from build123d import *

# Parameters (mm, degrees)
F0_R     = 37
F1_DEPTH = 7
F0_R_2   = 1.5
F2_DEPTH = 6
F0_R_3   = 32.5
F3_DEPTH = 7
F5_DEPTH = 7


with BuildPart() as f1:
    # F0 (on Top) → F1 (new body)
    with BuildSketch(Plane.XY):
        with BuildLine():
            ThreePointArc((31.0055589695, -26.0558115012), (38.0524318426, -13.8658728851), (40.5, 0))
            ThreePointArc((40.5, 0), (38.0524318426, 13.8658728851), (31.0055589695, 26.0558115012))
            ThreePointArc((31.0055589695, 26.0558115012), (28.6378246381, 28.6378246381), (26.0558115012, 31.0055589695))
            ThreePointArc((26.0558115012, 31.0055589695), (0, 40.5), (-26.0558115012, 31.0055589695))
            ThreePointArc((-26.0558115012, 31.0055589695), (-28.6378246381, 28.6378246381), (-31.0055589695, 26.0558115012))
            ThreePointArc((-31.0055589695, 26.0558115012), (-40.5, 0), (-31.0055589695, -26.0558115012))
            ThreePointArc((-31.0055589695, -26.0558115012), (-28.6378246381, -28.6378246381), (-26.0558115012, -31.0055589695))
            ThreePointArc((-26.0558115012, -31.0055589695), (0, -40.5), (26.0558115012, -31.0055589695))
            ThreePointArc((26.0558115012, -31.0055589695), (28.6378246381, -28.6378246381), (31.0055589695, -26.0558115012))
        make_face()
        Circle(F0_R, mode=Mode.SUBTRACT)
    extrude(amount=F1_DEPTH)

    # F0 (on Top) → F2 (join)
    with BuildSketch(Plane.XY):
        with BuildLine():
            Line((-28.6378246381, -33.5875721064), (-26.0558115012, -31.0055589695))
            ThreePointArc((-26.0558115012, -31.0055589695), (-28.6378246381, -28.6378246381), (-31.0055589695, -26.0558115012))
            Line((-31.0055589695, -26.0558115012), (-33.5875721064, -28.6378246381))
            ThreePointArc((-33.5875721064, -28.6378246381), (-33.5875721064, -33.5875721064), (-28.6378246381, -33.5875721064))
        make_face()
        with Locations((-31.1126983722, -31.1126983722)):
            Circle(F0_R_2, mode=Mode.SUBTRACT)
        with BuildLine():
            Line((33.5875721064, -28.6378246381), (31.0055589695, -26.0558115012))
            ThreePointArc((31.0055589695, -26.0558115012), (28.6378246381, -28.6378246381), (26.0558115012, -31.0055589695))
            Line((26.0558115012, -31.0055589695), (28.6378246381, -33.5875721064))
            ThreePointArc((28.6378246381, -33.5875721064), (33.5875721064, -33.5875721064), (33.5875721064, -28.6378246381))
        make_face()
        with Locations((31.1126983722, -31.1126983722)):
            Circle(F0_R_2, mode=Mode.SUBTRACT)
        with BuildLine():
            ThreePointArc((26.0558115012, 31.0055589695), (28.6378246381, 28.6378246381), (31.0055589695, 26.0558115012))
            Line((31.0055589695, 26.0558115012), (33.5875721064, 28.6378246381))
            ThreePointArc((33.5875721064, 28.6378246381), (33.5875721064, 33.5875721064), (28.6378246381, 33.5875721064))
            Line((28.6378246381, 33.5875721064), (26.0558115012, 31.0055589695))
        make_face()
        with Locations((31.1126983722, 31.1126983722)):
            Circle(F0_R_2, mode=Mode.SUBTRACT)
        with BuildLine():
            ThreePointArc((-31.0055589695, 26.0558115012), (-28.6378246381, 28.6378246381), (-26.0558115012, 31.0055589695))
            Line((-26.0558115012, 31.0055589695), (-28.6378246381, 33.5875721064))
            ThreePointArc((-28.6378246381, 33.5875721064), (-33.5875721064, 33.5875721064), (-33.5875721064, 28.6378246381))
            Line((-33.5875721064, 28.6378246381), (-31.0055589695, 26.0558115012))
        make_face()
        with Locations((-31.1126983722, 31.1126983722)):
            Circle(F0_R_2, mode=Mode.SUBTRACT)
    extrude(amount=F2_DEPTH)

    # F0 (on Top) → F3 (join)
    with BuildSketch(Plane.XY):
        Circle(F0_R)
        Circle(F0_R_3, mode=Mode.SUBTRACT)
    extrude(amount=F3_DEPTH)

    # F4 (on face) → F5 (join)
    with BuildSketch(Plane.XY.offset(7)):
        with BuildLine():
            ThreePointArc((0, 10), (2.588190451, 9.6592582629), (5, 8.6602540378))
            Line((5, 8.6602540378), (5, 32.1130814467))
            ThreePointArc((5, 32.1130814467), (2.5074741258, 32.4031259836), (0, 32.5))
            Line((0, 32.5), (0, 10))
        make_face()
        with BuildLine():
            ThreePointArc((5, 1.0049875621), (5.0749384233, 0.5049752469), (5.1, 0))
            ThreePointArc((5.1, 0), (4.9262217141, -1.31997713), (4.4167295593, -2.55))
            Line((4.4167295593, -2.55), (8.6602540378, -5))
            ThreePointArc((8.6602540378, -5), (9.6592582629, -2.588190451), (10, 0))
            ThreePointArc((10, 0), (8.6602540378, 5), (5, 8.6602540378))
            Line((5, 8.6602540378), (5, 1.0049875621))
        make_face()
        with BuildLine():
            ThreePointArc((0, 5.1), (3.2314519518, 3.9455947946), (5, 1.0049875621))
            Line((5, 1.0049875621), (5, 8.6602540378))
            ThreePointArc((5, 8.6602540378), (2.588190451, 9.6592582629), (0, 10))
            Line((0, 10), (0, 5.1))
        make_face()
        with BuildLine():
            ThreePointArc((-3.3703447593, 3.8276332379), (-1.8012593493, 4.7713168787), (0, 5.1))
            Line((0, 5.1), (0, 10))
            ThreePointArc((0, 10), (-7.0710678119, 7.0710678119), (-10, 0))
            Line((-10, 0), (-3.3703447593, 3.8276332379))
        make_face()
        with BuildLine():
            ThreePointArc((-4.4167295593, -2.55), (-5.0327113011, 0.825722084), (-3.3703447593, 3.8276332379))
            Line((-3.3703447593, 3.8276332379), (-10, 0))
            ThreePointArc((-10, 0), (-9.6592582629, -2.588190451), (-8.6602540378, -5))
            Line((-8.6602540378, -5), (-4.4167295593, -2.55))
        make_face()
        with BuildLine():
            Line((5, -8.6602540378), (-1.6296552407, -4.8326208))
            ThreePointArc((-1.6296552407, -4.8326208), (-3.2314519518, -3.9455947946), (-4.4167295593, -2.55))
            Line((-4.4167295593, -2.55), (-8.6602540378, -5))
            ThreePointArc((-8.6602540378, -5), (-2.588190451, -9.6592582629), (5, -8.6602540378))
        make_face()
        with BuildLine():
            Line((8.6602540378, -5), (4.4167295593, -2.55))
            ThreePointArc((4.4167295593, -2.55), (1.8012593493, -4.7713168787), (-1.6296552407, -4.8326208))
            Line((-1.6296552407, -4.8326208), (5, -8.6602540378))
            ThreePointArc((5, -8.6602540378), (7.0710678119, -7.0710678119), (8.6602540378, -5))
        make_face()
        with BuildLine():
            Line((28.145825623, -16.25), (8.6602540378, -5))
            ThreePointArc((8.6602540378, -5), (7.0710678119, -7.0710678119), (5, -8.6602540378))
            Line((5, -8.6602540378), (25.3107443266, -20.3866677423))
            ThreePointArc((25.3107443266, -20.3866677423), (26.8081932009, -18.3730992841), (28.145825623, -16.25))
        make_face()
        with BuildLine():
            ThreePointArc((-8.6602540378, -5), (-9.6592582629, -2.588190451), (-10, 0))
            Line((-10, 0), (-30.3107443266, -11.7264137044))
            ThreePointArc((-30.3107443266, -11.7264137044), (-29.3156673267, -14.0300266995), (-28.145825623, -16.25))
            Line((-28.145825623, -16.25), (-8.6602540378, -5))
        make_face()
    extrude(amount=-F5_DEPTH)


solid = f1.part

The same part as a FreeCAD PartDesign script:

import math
import FreeCAD as App
import Part
import Sketcher

V = App.Vector
Q = App.Units.Quantity

doc = App.newDocument("Part")
body = doc.addObject("PartDesign::Body", "Body")

# Sketch on XY plane
sketch1 = doc.addObject("Sketcher::SketchObject", "Sketch")
body.addObject(sketch1)
sketch1.AttachmentSupport = (doc.XY_Plane, [""])
sketch1.MapMode = "FlatFace"
sketch1.addGeometry([
    Part.ArcOfCircle(Part.Circle(V(0, 0, 0), V(0, 0, 1), 40), math.radians(-40), math.radians(0)),  # 0
    Part.ArcOfCircle(Part.Circle(V(0, 0, 0), V(0, 0, 1), 40), math.radians(0), math.radians(40)),  # 1
    Part.ArcOfCircle(Part.Circle(V(0, 0, 0), V(0, 0, 1), 40), math.radians(40.04), math.radians(49.96)),  # 2
    Part.ArcOfCircle(Part.Circle(V(0, 0, 0), V(0, 0, 1), 40), math.radians(50), math.radians(130)),  # 3
    Part.ArcOfCircle(Part.Circle(V(0, 0, 0), V(0, 0, 1), 40), math.radians(130.04), math.radians(139.96)),  # 4
    Part.ArcOfCircle(Part.Circle(V(0, 0, 0), V(0, 0, 1), 40), math.radians(140), math.radians(220)),  # 5
    Part.ArcOfCircle(Part.Circle(V(0, 0, 0), V(0, 0, 1), 40), math.radians(-139.96), math.radians(-130.04)),  # 6
    Part.ArcOfCircle(Part.Circle(V(0, 0, 0), V(0, 0, 1), 40), math.radians(-130), math.radians(-50)),  # 7
    Part.ArcOfCircle(Part.Circle(V(0, 0, 0), V(0, 0, 1), 40), math.radians(-49.96), math.radians(-40.04)),  # 8
    Part.Circle(V(0, 0, 0), V(0, 0, 1), 37),  # 9
], False)
sketch1.addConstraint([
    Sketcher.Constraint("Tangent", 0, 2, 1, 1),
    Sketcher.Constraint("Tangent", 1, 2, 2, 1),
    Sketcher.Constraint("Tangent", 2, 2, 3, 1),
    Sketcher.Constraint("Tangent", 3, 2, 4, 1),
    Sketcher.Constraint("Tangent", 4, 2, 5, 1),
    Sketcher.Constraint("Tangent", 5, 2, 6, 1),
    Sketcher.Constraint("Tangent", 6, 2, 7, 1),
    Sketcher.Constraint("Tangent", 7, 2, 8, 1),
    Sketcher.Constraint("Tangent", 8, 2, 0, 1),
    Sketcher.Constraint("Coincident", 0, 3, -1, 1),
    Sketcher.Constraint("Coincident", 2, 3, -1, 1),
    Sketcher.Constraint("Coincident", 4, 3, -1, 1),
    Sketcher.Constraint("Coincident", 6, 3, -1, 1),
    Sketcher.Constraint("Coincident", 9, 3, -1, 1),
    Sketcher.Constraint("PointOnObject", 0, 2, -1),
    Sketcher.Constraint("Horizontal", 2, 2, 3, 2),
    Sketcher.Constraint("Horizontal", 1, 2, 4, 2),
    Sketcher.Constraint("Horizontal", 6, 2, 7, 2),
    Sketcher.Constraint("Horizontal", 5, 2, 8, 2),
    Sketcher.Constraint("Vertical", 4, 2, 5, 2),
    Sketcher.Constraint("Vertical", 3, 2, 6, 2),
    Sketcher.Constraint("Diameter", 9, 74.0),
    Sketcher.Constraint("Radius", 0, 40.5),
    Sketcher.Constraint("DistanceX", -1, 1, 1, 2, 31.005559),
    Sketcher.Constraint("DistanceX", -1, 1, 2, 2, 26.055812),
])
pad1 = doc.addObject("PartDesign::Pad", "Pad")
body.addObject(pad1)
pad1.Profile = sketch1
pad1.Length = 7

# Sketch on XY plane
sketch2 = doc.addObject("Sketcher::SketchObject", "Sketch001")
body.addObject(sketch2)
sketch2.AttachmentSupport = (doc.XY_Plane, [""])
sketch2.MapMode = "FlatFace"
sketch2.addGeometry([
    Part.LineSegment(V(-28.6, -33.6, 0), V(-26.1, -31, 0)),  # 0
    Part.ArcOfCircle(Part.Circle(V(0, 0, 0), V(0, 0, 1), 40.5), math.radians(-139.96), math.radians(-130.04)),  # 1
    Part.LineSegment(V(-31, -26.1, 0), V(-33.6, -28.6, 0)),  # 2
    Part.ArcOfCircle(Part.Circle(V(-31.1, -31.1, 0), V(0, 0, 1), 3.5), math.radians(135), math.radians(315)),  # 3
    Part.Circle(V(-31.1, -31.1, 0), V(0, 0, 1), 1.5),  # 4
    Part.LineSegment(V(33.6, -28.6, 0), V(31, -26.1, 0)),  # 5
    Part.ArcOfCircle(Part.Circle(V(0, 0, 0), V(0, 0, 1), 40.5), math.radians(-49.96), math.radians(-40.04)),  # 6
    Part.LineSegment(V(26.1, -31, 0), V(28.6, -33.6, 0)),  # 7
    Part.ArcOfCircle(Part.Circle(V(31.1, -31.1, 0), V(0, 0, 1), 3.5), math.radians(-135), math.radians(45)),  # 8
    Part.Circle(V(31.1, -31.1, 0), V(0, 0, 1), 1.5),  # 9
    Part.ArcOfCircle(Part.Circle(V(0, 0, 0), V(0, 0, 1), 40.5), math.radians(40.04), math.radians(49.96)),  # 10
    Part.LineSegment(V(31, 26.1, 0), V(33.6, 28.6, 0)),  # 11
    Part.ArcOfCircle(Part.Circle(V(31.1, 31.1, 0), V(0, 0, 1), 3.5), math.radians(-45), math.radians(135)),  # 12
    Part.LineSegment(V(28.6, 33.6, 0), V(26.1, 31, 0)),  # 13
    Part.Circle(V(31.1, 31.1, 0), V(0, 0, 1), 1.5),  # 14
    Part.ArcOfCircle(Part.Circle(V(0, 0, 0), V(0, 0, 1), 40.5), math.radians(130.04), math.radians(139.96)),  # 15
    Part.LineSegment(V(-26.1, 31, 0), V(-28.6, 33.6, 0)),  # 16
    Part.ArcOfCircle(Part.Circle(V(-31.1, 31.1, 0), V(0, 0, 1), 3.5), math.radians(45), math.radians(225)),  # 17
    Part.LineSegment(V(-33.6, 28.6, 0), V(-31, 26.1, 0)),  # 18
    Part.Circle(V(-31.1, 31.1, 0), V(0, 0, 1), 1.5),  # 19
], False)
sketch2.addConstraint([
    Sketcher.Constraint("Coincident", 0, 2, 1, 2),
    Sketcher.Constraint("Coincident", 1, 1, 2, 1),
    Sketcher.Constraint("Tangent", 2, 2, 3, 1),
    Sketcher.Constraint("Tangent", 3, 2, 0, 1),
    Sketcher.Constraint("Coincident", 5, 2, 6, 2),
    Sketcher.Constraint("Coincident", 6, 1, 7, 1),
    Sketcher.Constraint("Tangent", 7, 2, 8, 1),
    Sketcher.Constraint("Tangent", 8, 2, 5, 1),
    Sketcher.Constraint("Coincident", 10, 1, 11, 1),
    Sketcher.Constraint("Tangent", 11, 2, 12, 1),
    Sketcher.Constraint("Tangent", 12, 2, 13, 1),
    Sketcher.Constraint("Coincident", 13, 2, 10, 2),
    Sketcher.Constraint("Coincident", 15, 1, 16, 1),
    Sketcher.Constraint("Tangent", 16, 2, 17, 1),
    Sketcher.Constraint("Tangent", 17, 2, 18, 1),
    Sketcher.Constraint("Coincident", 18, 2, 15, 2),
    Sketcher.Constraint("Coincident", 1, 3, -1, 1),
    Sketcher.Constraint("Coincident", 6, 3, -1, 1),
    Sketcher.Constraint("Coincident", 10, 3, -1, 1),
    Sketcher.Constraint("Coincident", 15, 3, -1, 1),
    Sketcher.Constraint("Coincident", 4, 3, 3, 3),
    Sketcher.Constraint("Coincident", 9, 3, 8, 3),
    Sketcher.Constraint("Coincident", 14, 3, 12, 3),
    Sketcher.Constraint("Coincident", 19, 3, 17, 3),
    Sketcher.Constraint("Equal", 1, 6),
    Sketcher.Constraint("Equal", 3, 8),
    Sketcher.Constraint("Equal", 4, 9),
    Sketcher.Constraint("Equal", 6, 10),
    Sketcher.Constraint("Equal", 8, 12),
    Sketcher.Constraint("Equal", 9, 14),
    Sketcher.Constraint("Equal", 10, 15),
    Sketcher.Constraint("Equal", 12, 17),
    Sketcher.Constraint("Equal", 14, 19),
    Sketcher.Constraint("Symmetric", 3, 3, 12, 3, -1, 1),
    Sketcher.Constraint("Symmetric", 8, 3, 17, 3, -1, 1),
    Sketcher.Constraint("Symmetric", 3, 3, 8, 3, -2),
    Sketcher.Constraint("Parallel", 0, 2),
    Sketcher.Constraint("Perpendicular", 2, 5),
    Sketcher.Constraint("Parallel", 5, 7),
    Sketcher.Constraint("Perpendicular", 7, 11),
    Sketcher.Constraint("Parallel", 11, 13),
    Sketcher.Constraint("Perpendicular", 13, 16),
    Sketcher.Constraint("Parallel", 16, 18),
    Sketcher.Constraint("Horizontal", 1, 1, 5, 2),
    Sketcher.Constraint("Equal", 0, 2),
    Sketcher.Constraint("Diameter", 4, 3.0),
    Sketcher.Constraint("Radius", 1, 40.5),
    Sketcher.Constraint("Radius", 3, 3.5),
    Sketcher.Constraint("DistanceX", 3, 3, -1, 1, 31.112698),
])
pad2 = doc.addObject("PartDesign::Pad", "Pad001")
body.addObject(pad2)
pad2.Profile = sketch2
pad2.Length = 6

# Sketch on XY plane
sketch3 = doc.addObject("Sketcher::SketchObject", "Sketch002")
body.addObject(sketch3)
sketch3.AttachmentSupport = (doc.XY_Plane, [""])
sketch3.MapMode = "FlatFace"
sketch3.addGeometry([
    Part.Circle(V(0, 0, 0), V(0, 0, 1), 37),
    Part.Circle(V(0, 0, 0), V(0, 0, 1), 32),
], False)
sketch3.addConstraint([
    Sketcher.Constraint("Coincident", 0, 3, -1, 1),
    Sketcher.Constraint("Coincident", 1, 3, -1, 1),
    Sketcher.Constraint("Diameter", 0, 74.0),
    Sketcher.Constraint("Diameter", 1, 65.0),
])
pad3 = doc.addObject("PartDesign::Pad", "Pad002")
body.addObject(pad3)
pad3.Profile = sketch3
pad3.Length = 7

# Sketch on XY plane
sketch4 = doc.addObject("Sketcher::SketchObject", "Sketch003")
body.addObject(sketch4)
sketch4.AttachmentSupport = (doc.XY_Plane, [""])
sketch4.MapMode = "FlatFace"
sketch4.AttachmentOffset = App.Placement(V(0, 0, 7), App.Rotation())
sketch4.addGeometry([
    Part.LineSegment(V(5, 8.7, 0), V(5, 32.1, 0)),  # 0
    Part.ArcOfCircle(Part.Circle(V(0, 0, 0), V(0, 0, 1), 32.5), math.radians(81.15), math.radians(90)),  # 1
    Part.LineSegment(V(0, 32.5, 0), V(0, 10, 0)),  # 2
    Part.ArcOfCircle(Part.Circle(V(0, 0, 0), V(0, 0, 1), 10), math.radians(90), math.radians(180)),  # 3
    Part.LineSegment(V(-10, 0, 0), V(-30.3, -11.7, 0)),  # 4
    Part.ArcOfCircle(Part.Circle(V(0, 0, 0), V(0, 0, 1), 32.5), math.radians(-158.85), math.radians(-150)),  # 5
    Part.LineSegment(V(-28.1, -16.2, 0), V(-8.7, -5, 0)),  # 6
    Part.ArcOfCircle(Part.Circle(V(0, 0, 0), V(0, 0, 1), 10), math.radians(-150), math.radians(-60)),  # 7
    Part.LineSegment(V(5, -8.7, 0), V(25.3, -20.4, 0)),  # 8
    Part.ArcOfCircle(Part.Circle(V(0, 0, 0), V(0, 0, 1), 32.5), math.radians(-38.85), math.radians(-30)),  # 9
    Part.LineSegment(V(28.1, -16.2, 0), V(8.7, -5, 0)),  # 10
    Part.ArcOfCircle(Part.Circle(V(0, 0, 0), V(0, 0, 1), 10), math.radians(-30), math.radians(0)),  # 11
    Part.ArcOfCircle(Part.Circle(V(0, 0, 0), V(0, 0, 1), 10), math.radians(0), math.radians(60)),  # 12
    Part.ArcOfCircle(Part.Circle(V(0, 0, 0), V(0, 0, 1), 5.1), math.radians(131), math.radians(251)),  # 13
    Part.ArcOfCircle(Part.Circle(V(0, 0, 0), V(0, 0, 1), 5.1), math.radians(90), math.radians(131)),  # 14
    Part.ArcOfCircle(Part.Circle(V(0, 0, 0), V(0, 0, 1), 5.1), math.radians(11), math.radians(90)),  # 15
    Part.ArcOfCircle(Part.Circle(V(0, 0, 0), V(0, 0, 1), 5.1), math.radians(0), math.radians(11.36)),  # 16
    Part.ArcOfCircle(Part.Circle(V(0, 0, 0), V(0, 0, 1), 5.1), math.radians(-30), math.radians(0)),  # 17
    Part.ArcOfCircle(Part.Circle(V(0, 0, 0), V(0, 0, 1), 5.1), math.radians(-109), math.radians(-30)),  # 18
], False)
sketch4.addConstraint([
    Sketcher.Constraint("Coincident", 0, 2, 1, 1),
    Sketcher.Constraint("Coincident", 1, 2, 2, 1),
    Sketcher.Constraint("Coincident", 2, 2, 3, 1),
    Sketcher.Constraint("Coincident", 3, 2, 4, 1),
    Sketcher.Constraint("Coincident", 4, 2, 5, 1),
    Sketcher.Constraint("Coincident", 5, 2, 6, 1),
    Sketcher.Constraint("Coincident", 6, 2, 7, 1),
    Sketcher.Constraint("Coincident", 7, 2, 8, 1),
    Sketcher.Constraint("Coincident", 8, 2, 9, 1),
    Sketcher.Constraint("Coincident", 9, 2, 10, 1),
    Sketcher.Constraint("Coincident", 10, 2, 11, 1),
    Sketcher.Constraint("Tangent", 11, 2, 12, 1),
    Sketcher.Constraint("Coincident", 12, 2, 0, 1),
    Sketcher.Constraint("Tangent", 13, 1, 14, 2),
    Sketcher.Constraint("Tangent", 14, 1, 15, 2),
    Sketcher.Constraint("Tangent", 15, 1, 16, 2),
    Sketcher.Constraint("Tangent", 16, 1, 17, 2),
    Sketcher.Constraint("Tangent", 17, 1, 18, 2),
    Sketcher.Constraint("Tangent", 18, 1, 13, 2),
    Sketcher.Constraint("Vertical", 0),
    Sketcher.Constraint("Vertical", 2),
    Sketcher.Constraint("Coincident", 1, 3, -1, 1),
    Sketcher.Constraint("Coincident", 3, 3, -1, 1),
    Sketcher.Constraint("Coincident", 5, 3, -1, 1),
    Sketcher.Constraint("Coincident", 7, 3, -1, 1),
    Sketcher.Constraint("Coincident", 9, 3, -1, 1),
    Sketcher.Constraint("Coincident", 11, 3, -1, 1),
    Sketcher.Constraint("Coincident", 13, 3, -1, 1),
    Sketcher.Constraint("Coincident", 15, 3, -1, 1),
    Sketcher.Constraint("Equal", 1, 5),
    Sketcher.Constraint("Equal", 3, 7),
    Sketcher.Constraint("Equal", 5, 9),
    Sketcher.Constraint("Equal", 7, 11),
    Sketcher.Constraint("Equal", 11, 12),
    Sketcher.Constraint("Equal", 15, 16),
    Sketcher.Constraint("PointOnObject", 1, 2, -2),
    Sketcher.Constraint("PointOnObject", 3, 2, -1),
    Sketcher.Constraint("PointOnObject", 11, 2, -1),
    Sketcher.Constraint("PointOnObject", 14, 1, -2),
    Sketcher.Constraint("PointOnObject", 16, 1, -1),
    Sketcher.Constraint("Parallel", 4, 6),
    Sketcher.Constraint("Parallel", 8, 10),
    Sketcher.Constraint("Horizontal", 5, 2, 9, 2),
    Sketcher.Constraint("Horizontal", 6, 2, 10, 2),
    Sketcher.Constraint("Vertical", 0, 2, 7, 2),
    Sketcher.Constraint("Vertical", 12, 2, 15, 1),
    Sketcher.Constraint("Equal", 4, 8),
    Sketcher.Constraint("Radius", 3, 10.0),
    Sketcher.Constraint("Radius", 1, 32.5),
    Sketcher.Constraint("Radius", 13, 5.1),
    Sketcher.Constraint("Angle", 4, Q("-150 deg")),
    Sketcher.Constraint("DistanceY", 6, 2, -1, 1, 5.0),
    Sketcher.Constraint("DistanceY", 17, 1, -1, 1, 2.55),
    Sketcher.Constraint("DistanceY", 18, 1, -1, 1, 4.832621),
    Sketcher.Constraint("DistanceX", 13, 1, -1, 1, 3.370345),
])
pad4 = doc.addObject("PartDesign::Pad", "Pad003")
body.addObject(pad4)
pad4.Profile = sketch4
pad4.Length = 7
pad4.Reversed = True

doc.recompute()
